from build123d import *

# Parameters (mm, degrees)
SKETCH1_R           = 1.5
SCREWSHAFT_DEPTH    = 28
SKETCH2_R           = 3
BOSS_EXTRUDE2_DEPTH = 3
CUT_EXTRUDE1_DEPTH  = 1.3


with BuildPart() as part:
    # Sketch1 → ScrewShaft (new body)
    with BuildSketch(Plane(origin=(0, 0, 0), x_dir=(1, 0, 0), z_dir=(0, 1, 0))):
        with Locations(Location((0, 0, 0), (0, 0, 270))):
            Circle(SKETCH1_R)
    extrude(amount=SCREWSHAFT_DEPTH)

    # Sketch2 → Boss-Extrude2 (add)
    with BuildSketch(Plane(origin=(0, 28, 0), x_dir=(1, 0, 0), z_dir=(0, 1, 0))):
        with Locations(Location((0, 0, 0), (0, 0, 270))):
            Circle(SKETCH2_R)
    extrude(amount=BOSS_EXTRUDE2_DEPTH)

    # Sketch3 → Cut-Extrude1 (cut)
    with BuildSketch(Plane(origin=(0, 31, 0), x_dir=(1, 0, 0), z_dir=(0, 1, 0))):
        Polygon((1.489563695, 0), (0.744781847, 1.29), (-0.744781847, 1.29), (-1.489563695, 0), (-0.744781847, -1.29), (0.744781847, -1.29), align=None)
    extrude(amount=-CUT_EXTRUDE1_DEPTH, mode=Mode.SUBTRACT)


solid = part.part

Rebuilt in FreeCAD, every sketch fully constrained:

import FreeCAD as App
import Part
import Sketcher
from FreeCAD import Vector
Q = App.Units.Quantity

doc = App.newDocument("Part")
body = doc.addObject("PartDesign::Body", "Body")

sketch1 = doc.addObject("Sketcher::SketchObject", "Sketch")
body.addObject(sketch1)
sketch1.AttachmentSupport = (doc.XZ_Plane, [""])
sketch1.MapMode = "FlatFace"
sketch1.addGeometry(Part.Circle(Vector(0, 0, 0), Vector(0, 0, 1), 1.5), False)
sketch1.addConstraint(Sketcher.Constraint("Coincident", 0, 3, -1, 1))
sketch1.addConstraint(Sketcher.Constraint("Diameter", 0, Q("3 mm")))
pad1 = doc.addObject("PartDesign::Pad", "Pad")
body.addObject(pad1)
pad1.Profile = sketch1
pad1.Length = 28
pad1.Reversed = True

sketch2 = doc.addObject("Sketcher::SketchObject", "Sketch001")
body.addObject(sketch2)
sketch2.AttachmentSupport = (doc.XZ_Plane, [""])
sketch2.MapMode = "FlatFace"
sketch2.AttachmentOffset = App.Placement(Vector(0, 0, -28), App.Rotation())
sketch2.addGeometry(Part.Circle(Vector(0, 0, 0), Vector(0, 0, 1), 3), False)
sketch2.addConstraint(Sketcher.Constraint("Coincident", 0, 3, -1, 1))
sketch2.addConstraint(Sketcher.Constraint("Diameter", 0, Q("6 mm")))
pad2 = doc.addObject("PartDesign::Pad", "Pad001")
body.addObject(pad2)
pad2.Profile = sketch2
pad2.Length = 3
pad2.Reversed = True

sketch3 = doc.addObject("Sketcher::SketchObject", "Sketch002")
body.addObject(sketch3)
sketch3.AttachmentSupport = (doc.XZ_Plane, [""])
sketch3.MapMode = "FlatFace"
sketch3.AttachmentOffset = App.Placement(Vector(0, 0, -31), App.Rotation())
sketch3.addGeometry(Part.LineSegment(Vector(1.489564, 0, 0), Vector(0.744782, -1.29, 0)), False)
sketch3.addGeometry(Part.LineSegment(Vector(0.744782, -1.29, 0), Vector(-0.744782, -1.29, 0)), False)
sketch3.addGeometry(Part.LineSegment(Vector(-0.744782, -1.29, 0), Vector(-1.489564, 0, 0)), False)
sketch3.addGeometry(Part.LineSegment(Vector(-1.489564, 0, 0), Vector(-0.744782, 1.29, 0)), False)
sketch3.addGeometry(Part.LineSegment(Vector(-0.744782, 1.29, 0), Vector(0.744782, 1.29, 0)), False)
sketch3.addGeometry(Part.LineSegment(Vector(0.744782, 1.29, 0), Vector(1.489564, 0, 0)), False)
sketch3.addConstraint(Sketcher.Constraint("Coincident", 0, 2, 1, 1))
sketch3.addConstraint(Sketcher.Constraint("Coincident", 1, 2, 2, 1))
sketch3.addConstraint(Sketcher.Constraint("Coincident", 2, 2, 3, 1))
sketch3.addConstraint(Sketcher.Constraint("Coincident", 3, 2, 4, 1))
sketch3.addConstraint(Sketcher.Constraint("Coincident", 4, 2, 5, 1))
sketch3.addConstraint(Sketcher.Constraint("Coincident", 5, 2, 0, 1))
sketch3.addConstraint(Sketcher.Constraint("Horizontal", 1))
sketch3.addConstraint(Sketcher.Constraint("Horizontal", 4))
sketch3.addConstraint(Sketcher.Constraint("Symmetric", 0, 2, 3, 2, -1, 1))
sketch3.addConstraint(Sketcher.Constraint("Symmetric", 2, 2, 5, 2, -1, 1))
sketch3.addConstraint(Sketcher.Constraint("PointOnObject", 2, 2, -1))
sketch3.addConstraint(Sketcher.Constraint("Parallel", 2, 5))
sketch3.addConstraint(Sketcher.Constraint("Vertical", 1, 2, 3, 2))
sketch3.addConstraint(Sketcher.Constraint("Angle", 0, Q("-120 deg")))
sketch3.addConstraint(Sketcher.Constraint("DistanceY", 0, 2, -1, 1, Q("1.29 mm")))
sketch3.addConstraint(Sketcher.Constraint("DistanceX", 1, 2, 1, 1, Q("1.489564 mm")))
pocket1 = doc.addObject("PartDesign::Pocket", "Pocket")
body.addObject(pocket1)
pocket1.Profile = sketch3
pocket1.Length = 1.3
pocket1.Reversed = True

doc.recompute()
